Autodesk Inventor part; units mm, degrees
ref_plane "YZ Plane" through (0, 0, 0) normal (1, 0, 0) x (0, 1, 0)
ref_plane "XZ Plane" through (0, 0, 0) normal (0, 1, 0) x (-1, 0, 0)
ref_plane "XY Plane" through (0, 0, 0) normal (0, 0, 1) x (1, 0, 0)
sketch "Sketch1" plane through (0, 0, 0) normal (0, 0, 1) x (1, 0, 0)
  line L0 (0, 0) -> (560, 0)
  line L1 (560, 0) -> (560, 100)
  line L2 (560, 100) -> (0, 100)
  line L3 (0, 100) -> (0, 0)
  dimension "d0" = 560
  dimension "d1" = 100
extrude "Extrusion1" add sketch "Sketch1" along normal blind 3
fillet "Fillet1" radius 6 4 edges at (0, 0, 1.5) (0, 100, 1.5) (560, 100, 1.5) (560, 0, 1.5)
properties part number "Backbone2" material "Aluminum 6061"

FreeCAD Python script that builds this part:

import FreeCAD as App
import Part
import Sketcher

V = App.Vector
Q = App.Units.Quantity


def edges_at(feature, points):
    """Names of the edges that pass closest to the given points."""
    edges = feature.Shape.Edges
    near = lambda p: min(range(len(edges)), key=lambda i: edges[i].distToShape(Part.Vertex(*p))[0])
    return sorted({f"Edge{near(p) + 1}" for p in points})


def add_polygon(sketch, points):
    """Adds a closed chain of lines whose ends are joined by coincident constraints."""
    first, n = sketch.GeometryCount, len(points)
    for a, b in zip(points, points[1:] + points[:1]):
        sketch.addGeometry(Part.LineSegment(App.Vector(*a, 0), App.Vector(*b, 0)), False)
    for i in range(n):
        sketch.addConstraint(Sketcher.Constraint("Coincident", first + i, 2, first + (i + 1) % n, 1))

doc = App.newDocument("Part")
body = doc.addObject("PartDesign::Body", "Body")

# Sketch on XY plane
sketch1 = doc.addObject("Sketcher::SketchObject", "Sketch")
body.addObject(sketch1)
sketch1.AttachmentSupport = (doc.XY_Plane, [""])
sketch1.MapMode = "FlatFace"
add_polygon(sketch1, [(0, 100), (0, 0), (560, 0), (560, 100)])  # lines 0-3
sketch1.addConstraint(Sketcher.Constraint("Vertical", 0))
sketch1.addConstraint(Sketcher.Constraint("Horizontal", 1))
sketch1.addConstraint(Sketcher.Constraint("Vertical", 2))
sketch1.addConstraint(Sketcher.Constraint("Horizontal", 3))
sketch1.addConstraint(Sketcher.Constraint("Coincident", 0, 2, -1, 1))
sketch1.addConstraint(Sketcher.Constraint("DistanceX", 1, 1, 1, 2, Q("560 mm")))
sketch1.addConstraint(Sketcher.Constraint("DistanceY", 0, 2, 0, 1, Q("100 mm")))
pad1 = doc.addObject("PartDesign::Pad", "Pad")
body.addObject(pad1)
pad1.Profile = sketch1
pad1.Length = 3
doc.recompute()

fillet = doc.addObject("PartDesign::Fillet", "Fillet")
body.addObject(fillet)
fillet.Base = (pad1, edges_at(pad1, [
    (0, 0, 1.5),
    (0, 100, 1.5),
    (560, 100, 1.5),
    (560, 0, 1.5),
]))
fillet.Radius = 6

doc.recompute()
